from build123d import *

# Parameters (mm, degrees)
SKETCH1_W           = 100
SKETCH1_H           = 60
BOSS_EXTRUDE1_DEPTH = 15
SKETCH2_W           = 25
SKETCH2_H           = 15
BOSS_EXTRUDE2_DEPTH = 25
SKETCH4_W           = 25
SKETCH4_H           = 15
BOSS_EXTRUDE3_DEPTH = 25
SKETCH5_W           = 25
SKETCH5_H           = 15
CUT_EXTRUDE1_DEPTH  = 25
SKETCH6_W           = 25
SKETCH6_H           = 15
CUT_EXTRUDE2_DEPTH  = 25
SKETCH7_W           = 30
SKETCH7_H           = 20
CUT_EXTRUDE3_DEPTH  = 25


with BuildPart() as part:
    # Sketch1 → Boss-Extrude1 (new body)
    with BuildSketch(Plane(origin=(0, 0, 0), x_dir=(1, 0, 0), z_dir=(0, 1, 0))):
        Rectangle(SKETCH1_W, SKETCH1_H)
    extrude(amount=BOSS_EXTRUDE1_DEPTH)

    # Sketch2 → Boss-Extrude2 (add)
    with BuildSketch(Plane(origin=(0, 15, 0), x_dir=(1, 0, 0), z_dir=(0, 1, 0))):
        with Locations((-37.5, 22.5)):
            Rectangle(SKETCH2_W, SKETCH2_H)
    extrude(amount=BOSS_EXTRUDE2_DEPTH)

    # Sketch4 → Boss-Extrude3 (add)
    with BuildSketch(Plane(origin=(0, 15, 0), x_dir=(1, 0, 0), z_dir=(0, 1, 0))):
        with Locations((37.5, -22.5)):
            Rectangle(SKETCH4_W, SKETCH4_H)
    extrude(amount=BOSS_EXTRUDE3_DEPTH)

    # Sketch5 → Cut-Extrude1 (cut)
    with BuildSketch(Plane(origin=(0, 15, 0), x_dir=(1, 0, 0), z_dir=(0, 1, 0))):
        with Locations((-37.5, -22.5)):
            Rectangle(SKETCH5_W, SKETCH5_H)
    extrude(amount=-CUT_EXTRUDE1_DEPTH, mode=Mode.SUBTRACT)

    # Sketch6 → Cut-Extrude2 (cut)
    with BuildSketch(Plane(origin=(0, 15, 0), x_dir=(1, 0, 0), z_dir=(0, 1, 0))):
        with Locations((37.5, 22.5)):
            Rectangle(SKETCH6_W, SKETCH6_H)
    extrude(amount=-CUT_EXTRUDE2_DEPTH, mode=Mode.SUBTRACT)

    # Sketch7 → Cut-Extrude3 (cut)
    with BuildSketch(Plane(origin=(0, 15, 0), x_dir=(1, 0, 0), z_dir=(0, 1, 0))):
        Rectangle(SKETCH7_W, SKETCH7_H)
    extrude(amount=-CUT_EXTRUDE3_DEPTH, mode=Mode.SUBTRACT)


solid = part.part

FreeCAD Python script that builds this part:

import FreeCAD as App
import Part
import Sketcher


def add_polygon(sketch, points):
    """Adds a closed chain of lines whose ends are joined by coincident constraints."""
    first, n = sketch.GeometryCount, len(points)
    for a, b in zip(points, points[1:] + points[:1]):
        sketch.addGeometry(Part.LineSegment(App.Vector(*a, 0), App.Vector(*b, 0)), False)
    for i in range(n):
        sketch.addConstraint(Sketcher.Constraint("Coincident", first + i, 2, first + (i + 1) % n, 1))

doc = App.newDocument("Part")
body = doc.addObject("PartDesign::Body", "Body")

# Sketch on XZ plane
sketch1 = body.newObject("Sketcher::SketchObject", "Sketch")
sketch1.AttachmentSupport = (doc.getObject("XZ_Plane"), [""])
sketch1.MapMode = "FlatFace"
add_polygon(sketch1, [(-50, -30), (-50, 30), (50, 30), (50, -30)])  # lines 0-3
sketch1.addConstraint(Sketcher.Constraint("Vertical", 0))
sketch1.addConstraint(Sketcher.Constraint("Horizontal", 1))
sketch1.addConstraint(Sketcher.Constraint("Vertical", 2))
sketch1.addConstraint(Sketcher.Constraint("Horizontal", 3))
sketch1.addConstraint(Sketcher.Constraint("Symmetric", 0, 2, 2, 2, -1, 1))
sketch1.addConstraint(Sketcher.Constraint("DistanceX", 1, 1, 1, 2, 100.0))
sketch1.addConstraint(Sketcher.Constraint("DistanceY", 0, 1, 0, 2, 60.0))
pad1 = body.newObject("PartDesign::Pad", "Pad")
pad1.Profile = sketch1
pad1.Length = 15
pad1.Reversed = True

# Sketch on XZ plane
sketch2 = body.newObject("Sketcher::SketchObject", "Sketch001")
sketch2.AttachmentSupport = (doc.getObject("XZ_Plane"), [""])
sketch2.MapMode = "FlatFace"
sketch2.AttachmentOffset = App.Placement(App.Vector(0, 0, -15), App.Rotation())
add_polygon(sketch2, [(-50, -30), (-50, -15), (-25, -15), (-25, -30)])  # lines 0-3
sketch2.addConstraint(Sketcher.Constraint("Vertical", 0))
sketch2.addConstraint(Sketcher.Constraint("Horizontal", 1))
sketch2.addConstraint(Sketcher.Constraint("Vertical", 2))
sketch2.addConstraint(Sketcher.Constraint("Horizontal", 3))
sketch2.addConstraint(Sketcher.Constraint("DistanceX", 1, 1, 1, 2, 25.0))
sketch2.addConstraint(Sketcher.Constraint("DistanceY", 0, 1, 0, 2, 15.0))
sketch2.addConstraint(Sketcher.Constraint("DistanceX", 0, 2, -1, 1, 50.0))
sketch2.addConstraint(Sketcher.Constraint("DistanceY", 0, 2, -1, 1, 15.0))
pad2 = body.newObject("PartDesign::Pad", "Pad001")
pad2.Profile = sketch2
pad2.Length = 25
pad2.Reversed = True

# Sketch on XZ plane
sketch3 = body.newObject("Sketcher::SketchObject", "Sketch002")
sketch3.AttachmentSupport = (doc.getObject("XZ_Plane"), [""])
sketch3.MapMode = "FlatFace"
sketch3.AttachmentOffset = App.Placement(App.Vector(0, 0, -15), App.Rotation())
add_polygon(sketch3, [(25, 15), (25, 30), (50, 30), (50, 15)])  # lines 0-3
sketch3.addConstraint(Sketcher.Constraint("Vertical", 0))
sketch3.addConstraint(Sketcher.Constraint("Horizontal", 1))
sketch3.addConstraint(Sketcher.Constraint("Vertical", 2))
sketch3.addConstraint(Sketcher.Constraint("Horizontal", 3))
sketch3.addConstraint(Sketcher.Constraint("DistanceX", 1, 1, 1, 2, 25.0))
sketch3.addConstraint(Sketcher.Constraint("DistanceY", 0, 1, 0, 2, 15.0))
sketch3.addConstraint(Sketcher.Constraint("DistanceX", -1, 1, 0, 2, 25.0))
sketch3.addConstraint(Sketcher.Constraint("DistanceY", -1, 1, 0, 2, 30.0))
pad3 = body.newObject("PartDesign::Pad", "Pad002")
pad3.Profile = sketch3
pad3.Length = 25
pad3.Reversed = True

# Sketch on XZ plane
sketch4 = body.newObject("Sketcher::SketchObject", "Sketch003")
sketch4.AttachmentSupport = (doc.getObject("XZ_Plane"), [""])
sketch4.MapMode = "FlatFace"
sketch4.AttachmentOffset = App.Placement(App.Vector(0, 0, -15), App.Rotation())
add_polygon(sketch4, [(-50, 15), (-50, 30), (-25, 30), (-25, 15)])  # lines 0-3
sketch4.addConstraint(Sketcher.Constraint("Vertical", 0))
sketch4.addConstraint(Sketcher.Constraint("Horizontal", 1))
sketch4.addConstraint(Sketcher.Constraint("Vertical", 2))
sketch4.addConstraint(Sketcher.Constraint("Horizontal", 3))
sketch4.addConstraint(Sketcher.Constraint("DistanceX", 1, 1, 1, 2, 25.0))
sketch4.addConstraint(Sketcher.Constraint("DistanceY", 0, 1, 0, 2, 15.0))
sketch4.addConstraint(Sketcher.Constraint("DistanceX", 0, 2, -1, 1, 50.0))
sketch4.addConstraint(Sketcher.Constraint("DistanceY", -1, 1, 0, 2, 30.0))
pocket1 = body.newObject("PartDesign::Pocket", "Pocket")
pocket1.Profile = sketch4
pocket1.Length = 25
pocket1.Reversed = True

# Sketch on XZ plane
sketch5 = body.newObject("Sketcher::SketchObject", "Sketch004")
sketch5.AttachmentSupport = (doc.getObject("XZ_Plane"), [""])
sketch5.MapMode = "FlatFace"
sketch5.AttachmentOffset = App.Placement(App.Vector(0, 0, -15), App.Rotation())
add_polygon(sketch5, [(25, -30), (25, -15), (50, -15), (50, -30)])  # lines 0-3
sketch5.addConstraint(Sketcher.Constraint("Vertical", 0))
sketch5.addConstraint(Sketcher.Constraint("Horizontal", 1))
sketch5.addConstraint(Sketcher.Constraint("Vertical", 2))
sketch5.addConstraint(Sketcher.Constraint("Horizontal", 3))
sketch5.addConstraint(Sketcher.Constraint("DistanceX", 1, 1, 1, 2, 25.0))
sketch5.addConstraint(Sketcher.Constraint("DistanceY", 0, 1, 0, 2, 15.0))
sketch5.addConstraint(Sketcher.Constraint("DistanceX", -1, 1, 0, 2, 25.0))
sketch5.addConstraint(Sketcher.Constraint("DistanceY", 0, 2, -1, 1, 15.0))
pocket2 = body.newObject("PartDesign::Pocket", "Pocket001")
pocket2.Profile = sketch5
pocket2.Length = 25
pocket2.Reversed = True

# Sketch on XZ plane
sketch6 = body.newObject("Sketcher::SketchObject", "Sketch005")
sketch6.AttachmentSupport = (doc.getObject("XZ_Plane"), [""])
sketch6.MapMode = "FlatFace"
sketch6.AttachmentOffset = App.Placement(App.Vector(0, 0, -15), App.Rotation())
add_polygon(sketch6, [(-15, -10), (-15, 10), (15, 10), (15, -10)])  # lines 0-3
sketch6.addConstraint(Sketcher.Constraint("Vertical", 0))
sketch6.addConstraint(Sketcher.Constraint("Horizontal", 1))
sketch6.addConstraint(Sketcher.Constraint("Vertical", 2))
sketch6.addConstraint(Sketcher.Constraint("Horizontal", 3))
sketch6.addConstraint(Sketcher.Constraint("Symmetric", 0, 2, 2, 2, -1, 1))
sketch6.addConstraint(Sketcher.Constraint("DistanceX", 1, 1, 1, 2, 30.0))
sketch6.addConstraint(Sketcher.Constraint("DistanceY", 0, 1, 0, 2, 20.0))
pocket3 = body.newObject("PartDesign::Pocket", "Pocket002")
pocket3.Profile = sketch6
pocket3.Length = 25
pocket3.Reversed = True

doc.recompute()
